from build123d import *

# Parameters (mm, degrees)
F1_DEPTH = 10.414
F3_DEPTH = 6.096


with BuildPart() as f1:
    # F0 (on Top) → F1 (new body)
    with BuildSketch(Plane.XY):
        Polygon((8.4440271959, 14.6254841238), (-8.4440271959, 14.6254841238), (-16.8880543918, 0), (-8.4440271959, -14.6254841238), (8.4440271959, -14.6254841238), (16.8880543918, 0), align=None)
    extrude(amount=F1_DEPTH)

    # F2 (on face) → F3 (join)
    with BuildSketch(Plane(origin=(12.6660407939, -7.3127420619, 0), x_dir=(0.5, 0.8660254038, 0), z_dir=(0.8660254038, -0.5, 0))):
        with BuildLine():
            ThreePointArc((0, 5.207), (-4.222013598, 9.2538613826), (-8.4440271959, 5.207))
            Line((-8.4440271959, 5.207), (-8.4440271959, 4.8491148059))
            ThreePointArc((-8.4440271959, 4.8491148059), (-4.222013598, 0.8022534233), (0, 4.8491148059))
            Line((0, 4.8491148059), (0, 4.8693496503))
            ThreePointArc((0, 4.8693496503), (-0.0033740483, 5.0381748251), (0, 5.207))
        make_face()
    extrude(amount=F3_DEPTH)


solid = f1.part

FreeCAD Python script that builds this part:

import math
import FreeCAD as App
import Part
import Sketcher

V = App.Vector
Q = App.Units.Quantity

doc = App.newDocument("Part")
body = doc.addObject("PartDesign::Body", "Body")

sketch1 = body.newObject("Sketcher::SketchObject", "Sketch")
sketch1.AttachmentSupport = (doc.getObject("XY_Plane"), [""])
sketch1.MapMode = "FlatFace"
sketch1.addGeometry([
    Part.LineSegment(V(8.444027, 14.625484, 0), V(-8.444027, 14.625484, 0)),
    Part.LineSegment(V(-8.444027, 14.625484, 0), V(-16.888054, 0, 0)),
    Part.LineSegment(V(-16.888054, 0, 0), V(-8.444027, -14.625484, 0)),
    Part.LineSegment(V(-8.444027, -14.625484, 0), V(8.444027, -14.625484, 0)),
    Part.LineSegment(V(8.444027, -14.625484, 0), V(16.888054, 0, 0)),
    Part.LineSegment(V(16.888054, 0, 0), V(8.444027, 14.625484, 0)),
], False)
sketch1.addConstraint([
    Sketcher.Constraint("Coincident", 0, 2, 1, 1),
    Sketcher.Constraint("Coincident", 1, 2, 2, 1),
    Sketcher.Constraint("Coincident", 2, 2, 3, 1),
    Sketcher.Constraint("Coincident", 3, 2, 4, 1),
    Sketcher.Constraint("Coincident", 4, 2, 5, 1),
    Sketcher.Constraint("Coincident", 5, 2, 0, 1),
    Sketcher.Constraint("Horizontal", 0),
    Sketcher.Constraint("Horizontal", 3),
    Sketcher.Constraint("Symmetric", 0, 2, 3, 2, -1, 1),
    Sketcher.Constraint("Symmetric", 1, 2, 4, 2, -1, 1),
    Sketcher.Constraint("PointOnObject", 1, 2, -1),
    Sketcher.Constraint("Parallel", 2, 5),
    Sketcher.Constraint("Vertical", 0, 2, 2, 2),
    Sketcher.Constraint("Angle", 1, Q("-120 deg")),
    Sketcher.Constraint("DistanceX", 0, 2, 0, 1, 16.888054),
    Sketcher.Constraint("DistanceY", 2, 2, 0, 2, 29.250968),
])
pad1 = body.newObject("PartDesign::Pad", "Pad")
pad1.Profile = sketch1
pad1.Length = Q("0.41 in")

sketch2 = body.newObject("Sketcher::SketchObject", "Sketch001")
sketch2.Placement = App.Placement(V(12.666041, -7.312742, 0), App.Rotation(V(0.5, 0.866025404, 0), V(0, 0, 1), V(0.866025404, -0.5, 0), "ZXY"))
sketch2.addGeometry([
    Part.ArcOfCircle(Part.Circle(V(-4.222014, 5.028057, 0), V(0, 0, 1), 4.225804), math.radians(2.426928), math.radians(177.573072)),
    Part.LineSegment(V(-8.444027, 5.207, 0), V(-8.444027, 4.849115, 0)),
    Part.ArcOfCircle(Part.Circle(V(-4.222014, 5.028057, 0), V(0, 0, 1), 4.225804), math.radians(-177.573072), math.radians(-2.426928)),
    Part.LineSegment(V(0, 4.849115, 0), V(0, 4.86935, 0)),
    Part.ArcOfCircle(Part.Circle(V(4.222014, 5.038175, 0), V(0, 0, 1), 4.225388), math.radians(177.71014), math.radians(182.28986)),
], False)
sketch2.addConstraint([
    Sketcher.Constraint("Coincident", 0, 2, 1, 1),
    Sketcher.Constraint("Coincident", 1, 2, 2, 1),
    Sketcher.Constraint("Coincident", 2, 2, 3, 1),
    Sketcher.Constraint("Coincident", 3, 2, 4, 2),
    Sketcher.Constraint("Coincident", 4, 1, 0, 1),
    Sketcher.Constraint("Vertical", 1),
    Sketcher.Constraint("Vertical", 3),
    Sketcher.Constraint("Coincident", 2, 3, 0, 3),
    Sketcher.Constraint("Equal", 0, 2),
    Sketcher.Constraint("PointOnObject", 2, 2, -2),
    Sketcher.Constraint("PointOnObject", 4, 1, -2),
    Sketcher.Constraint("Horizontal", 1, 2, 2, 2),
    Sketcher.Constraint("DistanceY", -1, 1, 0, 2, Q("0.205 in")),
    Sketcher.Constraint("Radius", 0, 4.225804),
    Sketcher.Constraint("Radius", 4, 4.225388),
    Sketcher.Constraint("DistanceY", 1, 2, 1, 1, 0.357885),
    Sketcher.Constraint("DistanceY", 3, 1, 3, 2, 0.020235),
])
pad2 = body.newObject("PartDesign::Pad", "Pad001")
pad2.Profile = sketch2
pad2.Length = Q("0.24 in")

doc.recompute()
